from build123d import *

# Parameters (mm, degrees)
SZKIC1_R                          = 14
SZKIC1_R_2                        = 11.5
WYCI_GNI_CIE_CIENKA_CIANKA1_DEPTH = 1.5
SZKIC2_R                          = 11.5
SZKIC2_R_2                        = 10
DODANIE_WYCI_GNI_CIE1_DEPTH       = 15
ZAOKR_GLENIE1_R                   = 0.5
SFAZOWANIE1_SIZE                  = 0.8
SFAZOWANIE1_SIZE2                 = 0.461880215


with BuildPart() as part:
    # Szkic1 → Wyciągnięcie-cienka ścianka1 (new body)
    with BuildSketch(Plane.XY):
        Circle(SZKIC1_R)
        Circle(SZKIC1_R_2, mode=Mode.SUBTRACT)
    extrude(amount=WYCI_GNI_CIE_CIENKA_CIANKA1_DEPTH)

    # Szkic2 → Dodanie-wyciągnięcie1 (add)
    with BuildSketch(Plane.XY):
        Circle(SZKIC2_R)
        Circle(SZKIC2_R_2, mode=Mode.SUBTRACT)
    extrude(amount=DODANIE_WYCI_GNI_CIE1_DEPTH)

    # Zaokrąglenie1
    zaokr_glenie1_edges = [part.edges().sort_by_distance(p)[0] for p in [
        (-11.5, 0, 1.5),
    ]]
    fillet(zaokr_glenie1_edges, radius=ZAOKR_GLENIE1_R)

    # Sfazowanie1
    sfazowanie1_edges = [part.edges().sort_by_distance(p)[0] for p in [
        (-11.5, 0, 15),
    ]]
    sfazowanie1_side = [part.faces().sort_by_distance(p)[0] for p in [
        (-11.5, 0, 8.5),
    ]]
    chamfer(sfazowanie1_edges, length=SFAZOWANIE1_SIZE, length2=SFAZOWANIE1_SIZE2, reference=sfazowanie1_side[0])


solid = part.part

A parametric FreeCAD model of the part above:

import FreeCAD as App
import Part
import Sketcher

V = App.Vector
Q = App.Units.Quantity


def edges_at(feature, points):
    """Names of the edges that pass closest to the given points."""
    edges = feature.Shape.Edges
    near = lambda p: min(range(len(edges)), key=lambda i: edges[i].distToShape(Part.Vertex(*p))[0])
    return sorted({f"Edge{near(p) + 1}" for p in points})

doc = App.newDocument("Part")
params = doc.addObject("Spreadsheet::Sheet", "Params")
for row, (alias, value) in enumerate([
    ("sketch1_diameter", "28 mm"),
    ("sketch1_diameter2", "23 mm"),
    ("pad1_length", "1.5 mm"),
    ("sketch2_diameter", "23 mm"),
    ("sketch2_diameter2", "20 mm"),
    ("pad2_length", "15 mm"),
    ("fillet_radius", "0.5 mm"),
    ("chamfer_size", "0.8 mm"),
    ("chamfer_size2", "0.46188 mm"),
], start=1):
    params.set(f"A{row}", alias)
    params.set(f"B{row}", "=" + value)
    params.setAlias(f"B{row}", alias)

body = doc.addObject("PartDesign::Body", "Body")

# Sketch on XY plane
sketch1 = body.newObject("Sketcher::SketchObject", "Sketch")
sketch1.AttachmentSupport = (doc.getObject("XY_Plane"), [""])
sketch1.MapMode = "FlatFace"
sketch1.addGeometry(Part.Circle(V(0, 0, 0), V(0, 0, 1), 14), False)
sketch1.addGeometry(Part.Circle(V(0, 0, 0), V(0, 0, 1), 12), False)
sketch1.addConstraint(Sketcher.Constraint("Coincident", 0, 3, -1, 1))
sketch1.addConstraint(Sketcher.Constraint("Coincident", 1, 3, -1, 1))
sketch1.addConstraint(Sketcher.Constraint("Diameter", 0, Q("28 mm")))
sketch1.addConstraint(Sketcher.Constraint("Diameter", 1, Q("23 mm")))
sketch1.setExpression("Constraints[2]", "Params.sketch1_diameter")
sketch1.setExpression("Constraints[3]", "Params.sketch1_diameter2")
pad1 = body.newObject("PartDesign::Pad", "Pad")
pad1.Profile = sketch1
pad1.setExpression("Length", "Params.pad1_length")

# Sketch on XY plane
sketch2 = body.newObject("Sketcher::SketchObject", "Sketch001")
sketch2.AttachmentSupport = (doc.getObject("XY_Plane"), [""])
sketch2.MapMode = "FlatFace"
sketch2.addGeometry(Part.Circle(V(0, 0, 0), V(0, 0, 1), 12), False)
sketch2.addGeometry(Part.Circle(V(0, 0, 0), V(0, 0, 1), 10), False)
sketch2.addConstraint(Sketcher.Constraint("Coincident", 0, 3, -1, 1))
sketch2.addConstraint(Sketcher.Constraint("Coincident", 1, 3, -1, 1))
sketch2.addConstraint(Sketcher.Constraint("Diameter", 0, Q("23 mm")))
sketch2.addConstraint(Sketcher.Constraint("Diameter", 1, Q("20 mm")))
sketch2.setExpression("Constraints[2]", "Params.sketch2_diameter")
sketch2.setExpression("Constraints[3]", "Params.sketch2_diameter2")
pad2 = body.newObject("PartDesign::Pad", "Pad001")
pad2.Profile = sketch2
pad2.setExpression("Length", "Params.pad2_length")
doc.recompute()

fillet = body.newObject("PartDesign::Fillet", "Fillet")
fillet.Base = (pad2, edges_at(pad2, [(-11.5, 0, 1.5)]))
fillet.setExpression("Radius", "Params.fillet_radius")
doc.recompute()

chamfer = body.newObject("PartDesign::Chamfer", "Chamfer")
chamfer.Base = (fillet, edges_at(fillet, [(-11.5, 0, 15)]))
chamfer.ChamferType = "Two distances"
chamfer.setExpression("Size", "Params.chamfer_size")
chamfer.setExpression("Size2", "Params.chamfer_size2")

doc.recompute()
